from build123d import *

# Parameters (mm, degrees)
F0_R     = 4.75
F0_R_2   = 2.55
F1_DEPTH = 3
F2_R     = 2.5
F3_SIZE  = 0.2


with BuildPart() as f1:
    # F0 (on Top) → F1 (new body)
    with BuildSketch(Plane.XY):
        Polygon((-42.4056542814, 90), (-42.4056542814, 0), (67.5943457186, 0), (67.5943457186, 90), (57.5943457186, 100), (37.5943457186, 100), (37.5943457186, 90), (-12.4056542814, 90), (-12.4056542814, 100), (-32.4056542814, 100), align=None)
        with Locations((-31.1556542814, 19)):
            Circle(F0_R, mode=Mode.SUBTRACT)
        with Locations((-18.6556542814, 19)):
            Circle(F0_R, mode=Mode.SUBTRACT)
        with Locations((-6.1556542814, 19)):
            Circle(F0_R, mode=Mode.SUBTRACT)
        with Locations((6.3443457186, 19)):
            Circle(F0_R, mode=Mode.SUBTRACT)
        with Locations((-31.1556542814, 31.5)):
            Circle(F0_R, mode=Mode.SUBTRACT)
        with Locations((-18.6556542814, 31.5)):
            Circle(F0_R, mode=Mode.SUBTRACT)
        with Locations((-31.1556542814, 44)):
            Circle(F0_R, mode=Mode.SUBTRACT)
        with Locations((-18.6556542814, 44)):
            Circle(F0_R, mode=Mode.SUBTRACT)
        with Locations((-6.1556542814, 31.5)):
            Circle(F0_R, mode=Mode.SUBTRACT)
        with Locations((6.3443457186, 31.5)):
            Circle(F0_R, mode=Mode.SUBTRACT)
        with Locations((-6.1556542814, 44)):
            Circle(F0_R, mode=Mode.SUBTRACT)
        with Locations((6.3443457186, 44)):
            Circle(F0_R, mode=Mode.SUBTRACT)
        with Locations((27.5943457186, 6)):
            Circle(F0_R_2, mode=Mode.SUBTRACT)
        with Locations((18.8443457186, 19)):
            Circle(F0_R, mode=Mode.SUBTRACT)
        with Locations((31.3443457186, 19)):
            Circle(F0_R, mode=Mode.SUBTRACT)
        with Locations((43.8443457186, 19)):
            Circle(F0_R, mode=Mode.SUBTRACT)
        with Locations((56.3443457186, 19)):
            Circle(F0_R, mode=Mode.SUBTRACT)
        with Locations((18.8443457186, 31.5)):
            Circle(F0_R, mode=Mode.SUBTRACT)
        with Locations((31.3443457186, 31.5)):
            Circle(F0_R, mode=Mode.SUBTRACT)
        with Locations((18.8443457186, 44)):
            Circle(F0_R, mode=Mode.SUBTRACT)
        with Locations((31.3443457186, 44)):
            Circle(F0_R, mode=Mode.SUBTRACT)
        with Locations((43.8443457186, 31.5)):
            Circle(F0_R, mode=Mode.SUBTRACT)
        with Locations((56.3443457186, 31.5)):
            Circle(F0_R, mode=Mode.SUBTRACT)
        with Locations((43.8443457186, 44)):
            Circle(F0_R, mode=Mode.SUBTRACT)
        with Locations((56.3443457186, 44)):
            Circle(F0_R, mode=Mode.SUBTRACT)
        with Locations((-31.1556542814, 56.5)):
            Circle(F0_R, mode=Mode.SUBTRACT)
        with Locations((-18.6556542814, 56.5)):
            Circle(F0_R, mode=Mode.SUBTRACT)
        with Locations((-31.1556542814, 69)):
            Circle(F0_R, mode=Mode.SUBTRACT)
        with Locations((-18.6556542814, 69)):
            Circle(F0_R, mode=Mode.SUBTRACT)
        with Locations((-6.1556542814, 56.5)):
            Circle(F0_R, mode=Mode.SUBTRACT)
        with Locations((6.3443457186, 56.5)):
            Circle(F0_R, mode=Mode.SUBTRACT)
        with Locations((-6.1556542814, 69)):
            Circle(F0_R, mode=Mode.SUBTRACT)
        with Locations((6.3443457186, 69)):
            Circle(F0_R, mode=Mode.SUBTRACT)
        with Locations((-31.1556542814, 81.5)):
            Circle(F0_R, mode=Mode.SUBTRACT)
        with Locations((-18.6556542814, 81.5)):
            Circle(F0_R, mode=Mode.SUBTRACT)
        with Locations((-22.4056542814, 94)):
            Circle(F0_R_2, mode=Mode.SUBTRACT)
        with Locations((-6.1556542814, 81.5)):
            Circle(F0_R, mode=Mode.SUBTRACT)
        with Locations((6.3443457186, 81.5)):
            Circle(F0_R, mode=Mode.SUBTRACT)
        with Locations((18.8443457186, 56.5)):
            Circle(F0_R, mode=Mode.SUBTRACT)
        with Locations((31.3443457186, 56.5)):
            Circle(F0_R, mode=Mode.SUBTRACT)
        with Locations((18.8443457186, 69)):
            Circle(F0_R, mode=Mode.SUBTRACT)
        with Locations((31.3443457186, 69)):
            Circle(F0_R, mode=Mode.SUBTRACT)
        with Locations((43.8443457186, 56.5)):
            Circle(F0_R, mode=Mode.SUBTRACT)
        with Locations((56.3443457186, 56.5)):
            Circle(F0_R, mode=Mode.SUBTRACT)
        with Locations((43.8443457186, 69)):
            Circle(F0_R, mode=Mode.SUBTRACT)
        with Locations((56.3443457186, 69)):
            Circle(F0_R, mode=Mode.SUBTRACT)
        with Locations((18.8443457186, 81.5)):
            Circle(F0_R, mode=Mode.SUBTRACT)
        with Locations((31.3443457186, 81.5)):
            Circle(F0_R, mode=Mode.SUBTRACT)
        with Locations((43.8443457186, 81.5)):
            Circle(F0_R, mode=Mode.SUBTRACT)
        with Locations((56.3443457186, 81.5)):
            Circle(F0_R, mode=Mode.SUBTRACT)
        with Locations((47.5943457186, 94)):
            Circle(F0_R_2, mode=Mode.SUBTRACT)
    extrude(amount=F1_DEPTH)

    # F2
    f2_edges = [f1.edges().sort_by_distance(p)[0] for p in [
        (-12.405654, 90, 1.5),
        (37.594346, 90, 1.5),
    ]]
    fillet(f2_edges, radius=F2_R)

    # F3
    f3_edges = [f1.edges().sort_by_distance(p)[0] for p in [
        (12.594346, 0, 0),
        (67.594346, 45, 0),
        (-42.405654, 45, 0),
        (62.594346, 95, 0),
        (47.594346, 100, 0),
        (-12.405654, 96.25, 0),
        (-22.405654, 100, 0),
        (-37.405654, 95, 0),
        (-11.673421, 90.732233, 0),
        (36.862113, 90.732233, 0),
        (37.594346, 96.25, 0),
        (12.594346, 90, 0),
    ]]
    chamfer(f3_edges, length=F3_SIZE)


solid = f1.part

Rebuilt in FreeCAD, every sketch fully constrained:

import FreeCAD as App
import Part
import Sketcher
from FreeCAD import Vector
Q = App.Units.Quantity


def edges_at(feature, points):
    """Names of the edges that pass closest to the given points."""
    edges = feature.Shape.Edges
    near = lambda p: min(range(len(edges)), key=lambda i: edges[i].distToShape(Part.Vertex(*p))[0])
    return sorted({f"Edge{near(p) + 1}" for p in points})

doc = App.newDocument("Part")
body = doc.addObject("PartDesign::Body", "Body")

# Sketch on XY plane
sketch1 = body.newObject("Sketcher::SketchObject", "Sketch")
sketch1.AttachmentSupport = (doc.getObject("XY_Plane"), [""])
sketch1.MapMode = "FlatFace"
sketch1.addGeometry([
    Part.LineSegment(Vector(-42.4, 90, 0), Vector(-42.4, 0, 0)),  # 0
    Part.LineSegment(Vector(-42.4, 0, 0), Vector(67.6, 0, 0)),  # 1
    Part.LineSegment(Vector(67.6, 0, 0), Vector(67.6, 90, 0)),  # 2
    Part.LineSegment(Vector(67.6, 90, 0), Vector(57.6, 100, 0)),  # 3
    Part.LineSegment(Vector(57.6, 100, 0), Vector(37.6, 100, 0)),  # 4
    Part.LineSegment(Vector(37.6, 100, 0), Vector(37.6, 90, 0)),  # 5
    Part.LineSegment(Vector(37.6, 90, 0), Vector(-12.4, 90, 0)),  # 6
    Part.LineSegment(Vector(-12.4, 90, 0), Vector(-12.4, 100, 0)),  # 7
    Part.LineSegment(Vector(-12.4, 100, 0), Vector(-32.4, 100, 0)),  # 8
    Part.LineSegment(Vector(-32.4, 100, 0), Vector(-42.4, 90, 0)),  # 9
    Part.Circle(Vector(-31.2, 19, 0), Vector(0, 0, 1), 4.8),  # 10
    Part.Circle(Vector(-18.7, 19, 0), Vector(0, 0, 1), 4.8),  # 11
    Part.Circle(Vector(-6.2, 19, 0), Vector(0, 0, 1), 4.8),  # 12
    Part.Circle(Vector(6.3, 19, 0), Vector(0, 0, 1), 4.8),  # 13
    Part.Circle(Vector(-31.2, 31.5, 0), Vector(0, 0, 1), 4.8),  # 14
    Part.Circle(Vector(-18.7, 31.5, 0), Vector(0, 0, 1), 4.8),  # 15
    Part.Circle(Vector(-31.2, 44, 0), Vector(0, 0, 1), 4.8),  # 16
    Part.Circle(Vector(-18.7, 44, 0), Vector(0, 0, 1), 4.8),  # 17
    Part.Circle(Vector(-6.2, 31.5, 0), Vector(0, 0, 1), 4.8),  # 18
    Part.Circle(Vector(6.3, 31.5, 0), Vector(0, 0, 1), 4.8),  # 19
    Part.Circle(Vector(-6.2, 44, 0), Vector(0, 0, 1), 4.8),  # 20
    Part.Circle(Vector(6.3, 44, 0), Vector(0, 0, 1), 4.8),  # 21
    Part.Circle(Vector(27.6, 6, 0), Vector(0, 0, 1), 2.5),  # 22
    Part.Circle(Vector(18.8, 19, 0), Vector(0, 0, 1), 4.8),  # 23
    Part.Circle(Vector(31.3, 19, 0), Vector(0, 0, 1), 4.8),  # 24
    Part.Circle(Vector(43.8, 19, 0), Vector(0, 0, 1), 4.8),  # 25
    Part.Circle(Vector(56.3, 19, 0), Vector(0, 0, 1), 4.8),  # 26
    Part.Circle(Vector(18.8, 31.5, 0), Vector(0, 0, 1), 4.8),  # 27
    Part.Circle(Vector(31.3, 31.5, 0), Vector(0, 0, 1), 4.8),  # 28
    Part.Circle(Vector(18.8, 44, 0), Vector(0, 0, 1), 4.8),  # 29
    Part.Circle(Vector(31.3, 44, 0), Vector(0, 0, 1), 4.8),  # 30
    Part.Circle(Vector(43.8, 31.5, 0), Vector(0, 0, 1), 4.8),  # 31
    Part.Circle(Vector(56.3, 31.5, 0), Vector(0, 0, 1), 4.8),  # 32
    Part.Circle(Vector(43.8, 44, 0), Vector(0, 0, 1), 4.8),  # 33
    Part.Circle(Vector(56.3, 44, 0), Vector(0, 0, 1), 4.8),  # 34
    Part.Circle(Vector(-31.2, 56.5, 0), Vector(0, 0, 1), 4.8),  # 35
    Part.Circle(Vector(-18.7, 56.5, 0), Vector(0, 0, 1), 4.8),  # 36
    Part.Circle(Vector(-31.2, 69, 0), Vector(0, 0, 1), 4.8),  # 37
    Part.Circle(Vector(-18.7, 69, 0), Vector(0, 0, 1), 4.8),  # 38
    Part.Circle(Vector(-6.2, 56.5, 0), Vector(0, 0, 1), 4.8),  # 39
    Part.Circle(Vector(6.3, 56.5, 0), Vector(0, 0, 1), 4.8),  # 40
    Part.Circle(Vector(-6.2, 69, 0), Vector(0, 0, 1), 4.8),  # 41
    Part.Circle(Vector(6.3, 69, 0), Vector(0, 0, 1), 4.8),  # 42
    Part.Circle(Vector(-31.2, 81.5, 0), Vector(0, 0, 1), 4.8),  # 43
    Part.Circle(Vector(-18.7, 81.5, 0), Vector(0, 0, 1), 4.8),  # 44
    Part.Circle(Vector(-22.4, 94, 0), Vector(0, 0, 1), 2.5),  # 45
    Part.Circle(Vector(-6.2, 81.5, 0), Vector(0, 0, 1), 4.8),  # 46
    Part.Circle(Vector(6.3, 81.5, 0), Vector(0, 0, 1), 4.8),  # 47
    Part.Circle(Vector(18.8, 56.5, 0), Vector(0, 0, 1), 4.8),  # 48
    Part.Circle(Vector(31.3, 56.5, 0), Vector(0, 0, 1), 4.8),  # 49
    Part.Circle(Vector(18.8, 69, 0), Vector(0, 0, 1), 4.8),  # 50
    Part.Circle(Vector(31.3, 69, 0), Vector(0, 0, 1), 4.8),  # 51
    Part.Circle(Vector(43.8, 56.5, 0), Vector(0, 0, 1), 4.8),  # 52
    Part.Circle(Vector(56.3, 56.5, 0), Vector(0, 0, 1), 4.8),  # 53
    Part.Circle(Vector(43.8, 69, 0), Vector(0, 0, 1), 4.8),  # 54
    Part.Circle(Vector(56.3, 69, 0), Vector(0, 0, 1), 4.8),  # 55
    Part.Circle(Vector(18.8, 81.5, 0), Vector(0, 0, 1), 4.8),  # 56
    Part.Circle(Vector(31.3, 81.5, 0), Vector(0, 0, 1), 4.8),  # 57
    Part.Circle(Vector(43.8, 81.5, 0), Vector(0, 0, 1), 4.8),  # 58
    Part.Circle(Vector(56.3, 81.5, 0), Vector(0, 0, 1), 4.8),  # 59
    Part.Circle(Vector(47.6, 94, 0), Vector(0, 0, 1), 2.5),  # 60
], False)
sketch1.addConstraint([
    Sketcher.Constraint("Coincident", 0, 2, 1, 1),
    Sketcher.Constraint("Coincident", 1, 2, 2, 1),
    Sketcher.Constraint("Coincident", 2, 2, 3, 1),
    Sketcher.Constraint("Coincident", 3, 2, 4, 1),
    Sketcher.Constraint("Coincident", 4, 2, 5, 1),
    Sketcher.Constraint("Coincident", 5, 2, 6, 1),
    Sketcher.Constraint("Coincident", 6, 2, 7, 1),
    Sketcher.Constraint("Coincident", 7, 2, 8, 1),
    Sketcher.Constraint("Coincident", 8, 2, 9, 1),
    Sketcher.Constraint("Coincident", 9, 2, 0, 1),
    Sketcher.Constraint("Vertical", 0),
    Sketcher.Constraint("Horizontal", 1),
    Sketcher.Constraint("Vertical", 2),
    Sketcher.Constraint("Horizontal", 4),
    Sketcher.Constraint("Vertical", 5),
    Sketcher.Constraint("Horizontal", 6),
    Sketcher.Constraint("Vertical", 7),
    Sketcher.Constraint("Horizontal", 8),
    Sketcher.Constraint("Equal", 10, 11),
    Sketcher.Constraint("Equal", 11, 12),
    Sketcher.Constraint("Equal", 12, 13),
    Sketcher.Constraint("Equal", 13, 14),
    Sketcher.Constraint("Equal", 14, 15),
    Sketcher.Constraint("Equal", 15, 16),
    Sketcher.Constraint("Equal", 16, 17),
    Sketcher.Constraint("Equal", 17, 18),
    Sketcher.Constraint("Equal", 18, 19),
    Sketcher.Constraint("Equal", 19, 20),
    Sketcher.Constraint("Equal", 20, 21),
    Sketcher.Constraint("Equal", 21, 23),
    Sketcher.Constraint("Equal", 23, 24),
    Sketcher.Constraint("Equal", 24, 25),
    Sketcher.Constraint("Equal", 25, 26),
    Sketcher.Constraint("Equal", 26, 27),
    Sketcher.Constraint("Equal", 27, 28),
    Sketcher.Constraint("Equal", 28, 29),
    Sketcher.Constraint("Equal", 29, 30),
    Sketcher.Constraint("Equal", 30, 31),
    Sketcher.Constraint("Equal", 31, 32),
    Sketcher.Constraint("Equal", 32, 33),
    Sketcher.Constraint("Equal", 33, 34),
    Sketcher.Constraint("Equal", 34, 35),
    Sketcher.Constraint("Equal", 35, 36),
    Sketcher.Constraint("Equal", 36, 37),
    Sketcher.Constraint("Equal", 37, 38),
    Sketcher.Constraint("Equal", 38, 39),
    Sketcher.Constraint("Equal", 39, 40),
    Sketcher.Constraint("Equal", 40, 41),
    Sketcher.Constraint("Equal", 41, 42),
    Sketcher.Constraint("Equal", 42, 43),
    Sketcher.Constraint("Equal", 43, 44),
    Sketcher.Constraint("Equal", 22, 45),
    Sketcher.Constraint("Equal", 44, 46),
    Sketcher.Constraint("Equal", 46, 47),
    Sketcher.Constraint("Equal", 47, 48),
    Sketcher.Constraint("Equal", 48, 49),
    Sketcher.Constraint("Equal", 49, 50),
    Sketcher.Constraint("Equal", 50, 51),
    Sketcher.Constraint("Equal", 51, 52),
    Sketcher.Constraint("Equal", 52, 53),
    Sketcher.Constraint("Equal", 53, 54),
    Sketcher.Constraint("Equal", 54, 55),
    Sketcher.Constraint("Equal", 55, 56),
    Sketcher.Constraint("Equal", 56, 57),
    Sketcher.Constraint("Equal", 57, 58),
    Sketcher.Constraint("Equal", 58, 59),
    Sketcher.Constraint("Equal", 45, 60),
    Sketcher.Constraint("PointOnObject", 0, 2, -1),
    Sketcher.Constraint("Perpendicular", 3, 9),
    Sketcher.Constraint("Horizontal", 10, 3, 11, 3),
    Sketcher.Constraint("Horizontal", 11, 3, 12, 3),
    Sketcher.Constraint("Horizontal", 12, 3, 13, 3),
    Sketcher.Constraint("Horizontal", 14, 3, 15, 3),
    Sketcher.Constraint("Horizontal", 16, 3, 17, 3),
    Sketcher.Constraint("Horizontal", 15, 3, 18, 3),
    Sketcher.Constraint("Horizontal", 18, 3, 19, 3),
    Sketcher.Constraint("Horizontal", 17, 3, 20, 3),
    Sketcher.Constraint("Horizontal", 20, 3, 21, 3),
    Sketcher.Constraint("Horizontal", 13, 3, 23, 3),
    Sketcher.Constraint("Horizontal", 23, 3, 24, 3),
    Sketcher.Constraint("Horizontal", 24, 3, 25, 3),
    Sketcher.Constraint("Horizontal", 25, 3, 26, 3),
    Sketcher.Constraint("Horizontal", 19, 3, 27, 3),
    Sketcher.Constraint("Horizontal", 27, 3, 28, 3),
    Sketcher.Constraint("Horizontal", 21, 3, 29, 3),
    Sketcher.Constraint("Horizontal", 29, 3, 30, 3),
    Sketcher.Constraint("Horizontal", 28, 3, 31, 3),
    Sketcher.Constraint("Horizontal", 31, 3, 32, 3),
    Sketcher.Constraint("Horizontal", 30, 3, 33, 3),
    Sketcher.Constraint("Horizontal", 33, 3, 34, 3),
    Sketcher.Constraint("Horizontal", 35, 3, 36, 3),
    Sketcher.Constraint("Horizontal", 37, 3, 38, 3),
    Sketcher.Constraint("Horizontal", 36, 3, 39, 3),
    Sketcher.Constraint("Horizontal", 39, 3, 40, 3),
    Sketcher.Constraint("Horizontal", 38, 3, 41, 3),
    Sketcher.Constraint("Horizontal", 41, 3, 42, 3),
    Sketcher.Constraint("Horizontal", 43, 3, 44, 3),
    Sketcher.Constraint("Horizontal", 44, 3, 46, 3),
    Sketcher.Constraint("Horizontal", 46, 3, 47, 3),
    Sketcher.Constraint("Horizontal", 40, 3, 48, 3),
    Sketcher.Constraint("Horizontal", 48, 3, 49, 3),
    Sketcher.Constraint("Horizontal", 42, 3, 50, 3),
    Sketcher.Constraint("Horizontal", 50, 3, 51, 3),
    Sketcher.Constraint("Horizontal", 49, 3, 52, 3),
    Sketcher.Constraint("Horizontal", 52, 3, 53, 3),
    Sketcher.Constraint("Horizontal", 51, 3, 54, 3),
    Sketcher.Constraint("Horizontal", 54, 3, 55, 3),
    Sketcher.Constraint("Horizontal", 47, 3, 56, 3),
    Sketcher.Constraint("Horizontal", 56, 3, 57, 3),
    Sketcher.Constraint("Horizontal", 57, 3, 58, 3),
    Sketcher.Constraint("Horizontal", 58, 3, 59, 3),
    Sketcher.Constraint("Horizontal", 45, 3, 60, 3),
    Sketcher.Constraint("Horizontal", 2, 2, 5, 2),
    Sketcher.Constraint("Horizontal", 4, 2, 7, 2),
    Sketcher.Constraint("Horizontal", 6, 2, 9, 2),
    Sketcher.Constraint("Vertical", 10, 3, 14, 3),
    Sketcher.Constraint("Vertical", 11, 3, 15, 3),
    Sketcher.Constraint("Vertical", 14, 3, 16, 3),
    Sketcher.Constraint("Vertical", 15, 3, 17, 3),
    Sketcher.Constraint("Vertical", 12, 3, 18, 3),
    Sketcher.Constraint("Vertical", 13, 3, 19, 3),
    Sketcher.Constraint("Vertical", 18, 3, 20, 3),
    Sketcher.Constraint("Vertical", 19, 3, 21, 3),
    Sketcher.Constraint("Vertical", 23, 3, 27, 3),
    Sketcher.Constraint("Vertical", 24, 3, 28, 3),
    Sketcher.Constraint("Vertical", 27, 3, 29, 3),
    Sketcher.Constraint("Vertical", 28, 3, 30, 3),
    Sketcher.Constraint("Vertical", 25, 3, 31, 3),
    Sketcher.Constraint("Vertical", 26, 3, 32, 3),
    Sketcher.Constraint("Vertical", 31, 3, 33, 3),
    Sketcher.Constraint("Vertical", 32, 3, 34, 3),
    Sketcher.Constraint("Vertical", 16, 3, 35, 3),
    Sketcher.Constraint("Vertical", 17, 3, 36, 3),
    Sketcher.Constraint("Vertical", 35, 3, 37, 3),
    Sketcher.Constraint("Vertical", 36, 3, 38, 3),
    Sketcher.Constraint("Vertical", 20, 3, 39, 3),
    Sketcher.Constraint("Vertical", 21, 3, 40, 3),
    Sketcher.Constraint("Vertical", 39, 3, 41, 3),
    Sketcher.Constraint("Vertical", 40, 3, 42, 3),
    Sketcher.Constraint("Vertical", 37, 3, 43, 3),
    Sketcher.Constraint("Vertical", 38, 3, 44, 3),
    Sketcher.Constraint("Vertical", 41, 3, 46, 3),
    Sketcher.Constraint("Vertical", 42, 3, 47, 3),
    Sketcher.Constraint("Vertical", 29, 3, 48, 3),
    Sketcher.Constraint("Vertical", 30, 3, 49, 3),
    Sketcher.Constraint("Vertical", 48, 3, 50, 3),
    Sketcher.Constraint("Vertical", 49, 3, 51, 3),
    Sketcher.Constraint("Vertical", 33, 3, 52, 3),
    Sketcher.Constraint("Vertical", 34, 3, 53, 3),
    Sketcher.Constraint("Vertical", 52, 3, 54, 3),
    Sketcher.Constraint("Vertical", 53, 3, 55, 3),
    Sketcher.Constraint("Vertical", 50, 3, 56, 3),
    Sketcher.Constraint("Vertical", 51, 3, 57, 3),
    Sketcher.Constraint("Vertical", 54, 3, 58, 3),
    Sketcher.Constraint("Vertical", 55, 3, 59, 3),
    Sketcher.Constraint("Equal", 4, 8),
    Sketcher.Constraint("Equal", 3, 9),
    Sketcher.Constraint("Diameter", 10, Q("9.5 mm")),
    Sketcher.Constraint("Diameter", 22, Q("5.1 mm")),
    Sketcher.Constraint("DistanceX", 1, 1, 1, 2, Q("110 mm")),
    Sketcher.Constraint("DistanceX", 4, 2, 4, 1, Q("20 mm")),
    Sketcher.Constraint("DistanceX", 6, 2, 6, 1, Q("50 mm")),
    Sketcher.Constraint("DistanceY", 0, 2, 0, 1, Q("90 mm")),
    Sketcher.Constraint("DistanceY", -1, 1, 10, 3, Q("19 mm")),
    Sketcher.Constraint("DistanceY", -1, 1, 16, 3, Q("44 mm")),
    Sketcher.Constraint("DistanceY", -1, 1, 22, 3, Q("6 mm")),
    Sketcher.Constraint("DistanceY", -1, 1, 37, 3, Q("69 mm")),
    Sketcher.Constraint("DistanceY", -1, 1, 45, 3, Q("94 mm")),
    Sketcher.Constraint("DistanceY", -1, 1, 14, 3, Q("31.5 mm")),
    Sketcher.Constraint("DistanceY", -1, 1, 35, 3, Q("56.5 mm")),
    Sketcher.Constraint("DistanceY", -1, 1, 43, 3, Q("81.5 mm")),
    Sketcher.Constraint("DistanceX", 10, 3, -1, 1, Q("31.155654 mm")),
    Sketcher.Constraint("DistanceX", 11, 3, -1, 1, Q("18.655654 mm")),
    Sketcher.Constraint("DistanceX", 12, 3, -1, 1, Q("6.155654 mm")),
    Sketcher.Constraint("DistanceX", -1, 1, 13, 3, Q("6.344346 mm")),
    Sketcher.Constraint("DistanceX", -1, 1, 22, 3, Q("27.594346 mm")),
    Sketcher.Constraint("DistanceX", -1, 1, 23, 3, Q("18.844346 mm")),
    Sketcher.Constraint("DistanceX", -1, 1, 24, 3, Q("31.344346 mm")),
    Sketcher.Constraint("DistanceX", -1, 1, 25, 3, Q("43.844346 mm")),
    Sketcher.Constraint("DistanceX", -1, 1, 26, 3, Q("56.344346 mm")),
    Sketcher.Constraint("DistanceX", 45, 3, -1, 1, Q("22.405654 mm")),
    Sketcher.Constraint("DistanceX", -1, 1, 60, 3, Q("47.594346 mm")),
    Sketcher.Constraint("DistanceX", 0, 2, -1, 1, Q("42.405654 mm")),
])
pad1 = body.newObject("PartDesign::Pad", "Pad")
pad1.Profile = sketch1
pad1.Length = 3
doc.recompute()

fillet = body.newObject("PartDesign::Fillet", "Fillet")
fillet.Base = (pad1, edges_at(pad1, [(-12.406, 90, 1.5), (37.594, 90, 1.5)]))
fillet.Radius = 2.5
doc.recompute()

chamfer = body.newObject("PartDesign::Chamfer", "Chamfer")
chamfer.Base = (fillet, edges_at(fillet, [
    (12.594, 0, 0),
    (67.594, 45, 0),
    (-42.406, 45, 0),
    (62.594, 95, 0),
    (47.594, 100, 0),
    (-12.406, 96.25, 0),
    (-22.406, 100, 0),
    (-37.406, 95, 0),
    (-11.673, 90.732, 0),
    (36.862, 90.732, 0),
    (37.594, 96.25, 0),
    (12.594, 90, 0),
]))
chamfer.Size = 0.2

doc.recompute()
